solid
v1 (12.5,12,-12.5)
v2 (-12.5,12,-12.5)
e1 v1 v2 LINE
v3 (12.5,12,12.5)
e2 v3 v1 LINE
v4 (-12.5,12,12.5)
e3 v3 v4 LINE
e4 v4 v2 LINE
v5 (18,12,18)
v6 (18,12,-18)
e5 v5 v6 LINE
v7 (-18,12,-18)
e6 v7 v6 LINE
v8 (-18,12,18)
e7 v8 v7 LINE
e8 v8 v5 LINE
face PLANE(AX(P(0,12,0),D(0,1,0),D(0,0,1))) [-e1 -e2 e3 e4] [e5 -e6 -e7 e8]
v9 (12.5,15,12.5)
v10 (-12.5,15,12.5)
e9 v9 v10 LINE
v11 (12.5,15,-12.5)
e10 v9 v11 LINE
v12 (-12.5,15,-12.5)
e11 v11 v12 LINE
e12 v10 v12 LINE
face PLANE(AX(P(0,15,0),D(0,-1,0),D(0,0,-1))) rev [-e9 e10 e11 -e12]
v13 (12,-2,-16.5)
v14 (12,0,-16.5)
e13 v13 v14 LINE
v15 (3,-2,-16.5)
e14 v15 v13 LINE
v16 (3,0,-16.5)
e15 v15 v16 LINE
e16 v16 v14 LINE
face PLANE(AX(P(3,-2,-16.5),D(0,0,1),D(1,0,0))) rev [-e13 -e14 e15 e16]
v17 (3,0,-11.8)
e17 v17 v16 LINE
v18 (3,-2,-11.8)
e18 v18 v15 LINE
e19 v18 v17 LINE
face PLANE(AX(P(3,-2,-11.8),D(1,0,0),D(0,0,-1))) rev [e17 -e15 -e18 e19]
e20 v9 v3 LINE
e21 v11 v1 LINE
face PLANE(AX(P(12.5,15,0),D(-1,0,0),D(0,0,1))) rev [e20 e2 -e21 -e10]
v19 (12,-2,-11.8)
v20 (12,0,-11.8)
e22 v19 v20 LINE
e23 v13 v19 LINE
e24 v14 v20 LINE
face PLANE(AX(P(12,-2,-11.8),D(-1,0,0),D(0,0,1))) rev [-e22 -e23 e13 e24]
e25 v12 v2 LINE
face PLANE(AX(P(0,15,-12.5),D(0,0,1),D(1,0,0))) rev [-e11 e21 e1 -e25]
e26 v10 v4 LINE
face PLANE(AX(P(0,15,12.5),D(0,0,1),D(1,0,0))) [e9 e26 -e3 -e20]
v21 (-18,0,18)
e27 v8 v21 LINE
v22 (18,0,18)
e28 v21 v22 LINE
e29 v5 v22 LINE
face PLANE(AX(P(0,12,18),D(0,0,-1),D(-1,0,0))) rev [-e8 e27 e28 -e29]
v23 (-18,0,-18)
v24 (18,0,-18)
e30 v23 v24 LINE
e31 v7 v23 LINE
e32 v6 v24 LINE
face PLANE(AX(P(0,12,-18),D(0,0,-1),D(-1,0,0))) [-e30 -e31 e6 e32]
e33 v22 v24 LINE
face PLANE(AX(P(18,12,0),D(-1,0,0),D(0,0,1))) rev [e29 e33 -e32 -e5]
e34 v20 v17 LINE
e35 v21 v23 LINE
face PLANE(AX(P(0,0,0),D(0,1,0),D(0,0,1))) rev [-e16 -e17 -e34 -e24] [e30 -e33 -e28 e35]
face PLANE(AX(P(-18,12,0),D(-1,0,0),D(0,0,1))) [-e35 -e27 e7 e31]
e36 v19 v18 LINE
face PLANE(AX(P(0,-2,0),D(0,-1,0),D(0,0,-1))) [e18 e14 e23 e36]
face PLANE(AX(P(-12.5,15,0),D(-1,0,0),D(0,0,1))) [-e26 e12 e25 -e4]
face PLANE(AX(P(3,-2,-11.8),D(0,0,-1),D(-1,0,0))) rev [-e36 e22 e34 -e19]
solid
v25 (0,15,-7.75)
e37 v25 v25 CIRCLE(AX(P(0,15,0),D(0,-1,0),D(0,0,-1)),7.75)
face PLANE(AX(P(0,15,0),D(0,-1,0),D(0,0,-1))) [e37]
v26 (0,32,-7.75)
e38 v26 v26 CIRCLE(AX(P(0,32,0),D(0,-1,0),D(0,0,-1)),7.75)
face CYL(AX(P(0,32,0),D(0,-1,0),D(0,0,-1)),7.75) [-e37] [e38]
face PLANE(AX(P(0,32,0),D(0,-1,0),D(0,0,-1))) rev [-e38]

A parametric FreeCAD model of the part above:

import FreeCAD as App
import Part
import Sketcher


def add_polygon(sketch, points):
    """Adds a closed chain of lines whose ends are joined by coincident constraints."""
    first, n = sketch.GeometryCount, len(points)
    for a, b in zip(points, points[1:] + points[:1]):
        sketch.addGeometry(Part.LineSegment(App.Vector(*a, 0), App.Vector(*b, 0)), False)
    for i in range(n):
        sketch.addConstraint(Sketcher.Constraint("Coincident", first + i, 2, first + (i + 1) % n, 1))

doc = App.newDocument("Part")
params = doc.addObject("Spreadsheet::Sheet", "Params")
for row, (alias, value) in enumerate([
    ("sketch1_width", "36 mm"),
    ("pad1_length", "12 mm"),
    ("sketch2_width", "25 mm"),
    ("pad2_length", "3 mm"),
    ("sketch3_width", "9 mm"),
    ("sketch3_height", "4.7 mm"),
    ("pad3_length", "2 mm"),
    ("sketch4_diameter", "15.5 mm"),
    ("pad4_length", "17 mm"),
], start=1):
    params.set(f"A{row}", alias)
    params.set(f"B{row}", "=" + value)
    params.setAlias(f"B{row}", alias)

body = doc.addObject("PartDesign::Body", "Body")

sketch1 = body.newObject("Sketcher::SketchObject", "Sketch")
sketch1.AttachmentSupport = (doc.getObject("XZ_Plane"), [""])
sketch1.MapMode = "FlatFace"
add_polygon(sketch1, [(-18, -18), (-18, 18), (18, 18), (18, -18)])
sketch1.addConstraint([
    Sketcher.Constraint("Vertical", 0),
    Sketcher.Constraint("Horizontal", 1),
    Sketcher.Constraint("Vertical", 2),
    Sketcher.Constraint("Horizontal", 3),
    Sketcher.Constraint("Symmetric", 0, 2, 2, 2, -1, 1),
    Sketcher.Constraint("Equal", 3, 0),
    Sketcher.Constraint("DistanceX", 1, 1, 1, 2, 36.0),
])
sketch1.setExpression("Constraints[10]", "Params.sketch1_width")
pad1 = body.newObject("PartDesign::Pad", "Pad")
pad1.Profile = sketch1
pad1.setExpression("Length", "Params.pad1_length")
pad1.Reversed = True

sketch2 = body.newObject("Sketcher::SketchObject", "Sketch001")
sketch2.AttachmentSupport = (doc.getObject("XZ_Plane"), [""])
sketch2.MapMode = "FlatFace"
sketch2.AttachmentOffset = App.Placement(App.Vector(0, 0, -12), App.Rotation())
add_polygon(sketch2, [(-12, -12), (-12, 12), (12, 12), (12, -12)])
sketch2.addConstraint([
    Sketcher.Constraint("Vertical", 0),
    Sketcher.Constraint("Horizontal", 1),
    Sketcher.Constraint("Vertical", 2),
    Sketcher.Constraint("Horizontal", 3),
    Sketcher.Constraint("Symmetric", 0, 2, 2, 2, -1, 1),
    Sketcher.Constraint("Equal", 3, 0),
    Sketcher.Constraint("DistanceX", 1, 1, 1, 2, 25.0),
])
sketch2.setExpression("Constraints[10]", "Params.sketch2_width")
pad2 = body.newObject("PartDesign::Pad", "Pad001")
pad2.Profile = sketch2
pad2.setExpression("Length", "Params.pad2_length")
pad2.Reversed = True

sketch3 = body.newObject("Sketcher::SketchObject", "Sketch002")
sketch3.AttachmentSupport = (doc.getObject("XZ_Plane"), [""])
sketch3.MapMode = "FlatFace"
add_polygon(sketch3, [(3, -11.8), (3, -16.5), (12, -16.5), (12, -11.8)])
sketch3.addConstraint([
    Sketcher.Constraint("Vertical", 0),
    Sketcher.Constraint("Horizontal", 1),
    Sketcher.Constraint("Vertical", 2),
    Sketcher.Constraint("Horizontal", 3),
    Sketcher.Constraint("DistanceX", 1, 1, 1, 2, 9.0),
    Sketcher.Constraint("DistanceY", 0, 2, 0, 1, 4.7),
    Sketcher.Constraint("DistanceX", -1, 1, 0, 2, 3.0),
    Sketcher.Constraint("DistanceY", 0, 2, -1, 1, 16.5),
])
sketch3.setExpression("Constraints[8]", "Params.sketch3_width")
sketch3.setExpression("Constraints[9]", "Params.sketch3_height")
pad3 = body.newObject("PartDesign::Pad", "Pad002")
pad3.Profile = sketch3
pad3.setExpression("Length", "Params.pad3_length")
body2 = doc.addObject("PartDesign::Body", "Body001")

sketch4 = body2.newObject("Sketcher::SketchObject", "Sketch003")
sketch4.AttachmentSupport = (doc.getObject("XZ_Plane001"), [""])
sketch4.MapMode = "FlatFace"
sketch4.AttachmentOffset = App.Placement(App.Vector(0, 0, -15), App.Rotation())
sketch4.addGeometry(Part.Circle(App.Vector(0, 0, 0), App.Vector(0, 0, 1), 8), False)
sketch4.addConstraint([
    Sketcher.Constraint("Coincident", 0, 3, -1, 1),
    Sketcher.Constraint("Diameter", 0, 15.5),
])
sketch4.setExpression("Constraints[1]", "Params.sketch4_diameter")
pad4 = body2.newObject("PartDesign::Pad", "Pad003")
pad4.Profile = sketch4
pad4.setExpression("Length", "Params.pad4_length")
pad4.Reversed = True

doc.recompute()
